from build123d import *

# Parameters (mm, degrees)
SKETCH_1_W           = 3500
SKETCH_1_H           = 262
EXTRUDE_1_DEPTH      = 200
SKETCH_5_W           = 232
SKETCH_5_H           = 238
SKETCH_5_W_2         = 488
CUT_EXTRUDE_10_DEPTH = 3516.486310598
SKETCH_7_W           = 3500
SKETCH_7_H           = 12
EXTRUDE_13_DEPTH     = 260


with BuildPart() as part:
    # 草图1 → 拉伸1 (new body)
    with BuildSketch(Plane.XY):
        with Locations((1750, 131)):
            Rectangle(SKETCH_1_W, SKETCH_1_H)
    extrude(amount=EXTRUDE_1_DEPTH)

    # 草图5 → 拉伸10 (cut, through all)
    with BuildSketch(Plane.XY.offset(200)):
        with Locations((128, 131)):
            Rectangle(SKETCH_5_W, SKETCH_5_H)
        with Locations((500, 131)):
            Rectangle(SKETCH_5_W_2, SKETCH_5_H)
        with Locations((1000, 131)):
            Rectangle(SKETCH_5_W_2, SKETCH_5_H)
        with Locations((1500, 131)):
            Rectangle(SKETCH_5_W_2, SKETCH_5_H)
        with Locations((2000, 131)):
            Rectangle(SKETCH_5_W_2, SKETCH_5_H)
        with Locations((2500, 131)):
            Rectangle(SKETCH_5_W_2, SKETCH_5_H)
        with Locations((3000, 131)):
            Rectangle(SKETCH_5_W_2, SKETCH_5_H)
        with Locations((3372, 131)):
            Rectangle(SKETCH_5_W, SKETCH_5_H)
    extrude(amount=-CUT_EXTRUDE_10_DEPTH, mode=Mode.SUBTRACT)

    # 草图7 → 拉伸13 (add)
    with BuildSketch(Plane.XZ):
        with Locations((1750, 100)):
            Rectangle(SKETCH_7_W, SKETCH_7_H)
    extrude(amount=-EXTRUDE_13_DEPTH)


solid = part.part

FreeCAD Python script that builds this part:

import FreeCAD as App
import Part
import Sketcher

doc = App.newDocument("Part")
body = doc.addObject("PartDesign::Body", "Body")

sketch1 = doc.addObject("Sketcher::SketchObject", "Sketch")
body.addObject(sketch1)
sketch1.AttachmentSupport = (doc.XY_Plane, [""])
sketch1.MapMode = "FlatFace"
sketch1.addGeometry([
    Part.LineSegment(App.Vector(0, 262, 0), App.Vector(0, 0, 0)),
    Part.LineSegment(App.Vector(0, 0, 0), App.Vector(3500, 0, 0)),
    Part.LineSegment(App.Vector(3500, 0, 0), App.Vector(3500, 262, 0)),
    Part.LineSegment(App.Vector(3500, 262, 0), App.Vector(0, 262, 0)),
], False)
sketch1.addConstraint([
    Sketcher.Constraint("Coincident", 0, 2, 1, 1),
    Sketcher.Constraint("Coincident", 1, 2, 2, 1),
    Sketcher.Constraint("Coincident", 2, 2, 3, 1),
    Sketcher.Constraint("Coincident", 3, 2, 0, 1),
    Sketcher.Constraint("Vertical", 0),
    Sketcher.Constraint("Horizontal", 1),
    Sketcher.Constraint("Vertical", 2),
    Sketcher.Constraint("Horizontal", 3),
    Sketcher.Constraint("Coincident", 0, 2, -1, 1),
    Sketcher.Constraint("DistanceX", 1, 1, 1, 2, 3500.0),
    Sketcher.Constraint("DistanceY", 0, 2, 0, 1, 262.0),
])
pad1 = doc.addObject("PartDesign::Pad", "Pad")
body.addObject(pad1)
pad1.Profile = sketch1
pad1.Length = 200

sketch2 = doc.addObject("Sketcher::SketchObject", "Sketch001")
body.addObject(sketch2)
sketch2.AttachmentSupport = (doc.XY_Plane, [""])
sketch2.MapMode = "FlatFace"
sketch2.AttachmentOffset = App.Placement(App.Vector(0, 0, 200), App.Rotation())
sketch2.addGeometry([
    Part.LineSegment(App.Vector(12, 250, 0), App.Vector(12, 12, 0)),
    Part.LineSegment(App.Vector(12, 12, 0), App.Vector(244, 12, 0)),
    Part.LineSegment(App.Vector(244, 12, 0), App.Vector(244, 250, 0)),
    Part.LineSegment(App.Vector(244, 250, 0), App.Vector(12, 250, 0)),
    Part.LineSegment(App.Vector(256, 250, 0), App.Vector(256, 12, 0)),
    Part.LineSegment(App.Vector(256, 12, 0), App.Vector(744, 12, 0)),
    Part.LineSegment(App.Vector(744, 12, 0), App.Vector(744, 250, 0)),
    Part.LineSegment(App.Vector(744, 250, 0), App.Vector(256, 250, 0)),
    Part.LineSegment(App.Vector(756, 250, 0), App.Vector(756, 12, 0)),
    Part.LineSegment(App.Vector(756, 12, 0), App.Vector(1244, 12, 0)),
    Part.LineSegment(App.Vector(1244, 12, 0), App.Vector(1244, 250, 0)),
    Part.LineSegment(App.Vector(1244, 250, 0), App.Vector(756, 250, 0)),
    Part.LineSegment(App.Vector(1256, 250, 0), App.Vector(1256, 12, 0)),
    Part.LineSegment(App.Vector(1256, 12, 0), App.Vector(1744, 12, 0)),
    Part.LineSegment(App.Vector(1744, 12, 0), App.Vector(1744, 250, 0)),
    Part.LineSegment(App.Vector(1744, 250, 0), App.Vector(1256, 250, 0)),
    Part.LineSegment(App.Vector(1756, 250, 0), App.Vector(1756, 12, 0)),
    Part.LineSegment(App.Vector(1756, 12, 0), App.Vector(2244, 12, 0)),
    Part.LineSegment(App.Vector(2244, 12, 0), App.Vector(2244, 250, 0)),
    Part.LineSegment(App.Vector(2244, 250, 0), App.Vector(1756, 250, 0)),
    Part.LineSegment(App.Vector(2256, 250, 0), App.Vector(2256, 12, 0)),
    Part.LineSegment(App.Vector(2256, 12, 0), App.Vector(2744, 12, 0)),
    Part.LineSegment(App.Vector(2744, 12, 0), App.Vector(2744, 250, 0)),
    Part.LineSegment(App.Vector(2744, 250, 0), App.Vector(2256, 250, 0)),
    Part.LineSegment(App.Vector(2756, 250, 0), App.Vector(2756, 12, 0)),
    Part.LineSegment(App.Vector(2756, 12, 0), App.Vector(3244, 12, 0)),
    Part.LineSegment(App.Vector(3244, 12, 0), App.Vector(3244, 250, 0)),
    Part.LineSegment(App.Vector(3244, 250, 0), App.Vector(2756, 250, 0)),
    Part.LineSegment(App.Vector(3256, 250, 0), App.Vector(3256, 12, 0)),
    Part.LineSegment(App.Vector(3256, 12, 0), App.Vector(3488, 12, 0)),
    Part.LineSegment(App.Vector(3488, 12, 0), App.Vector(3488, 250, 0)),
    Part.LineSegment(App.Vector(3488, 250, 0), App.Vector(3256, 250, 0)),
], False)
sketch2.addConstraint([
    Sketcher.Constraint("Coincident", 0, 2, 1, 1),
    Sketcher.Constraint("Coincident", 1, 2, 2, 1),
    Sketcher.Constraint("Coincident", 2, 2, 3, 1),
    Sketcher.Constraint("Coincident", 3, 2, 0, 1),
    Sketcher.Constraint("Coincident", 4, 2, 5, 1),
    Sketcher.Constraint("Coincident", 5, 2, 6, 1),
    Sketcher.Constraint("Coincident", 6, 2, 7, 1),
    Sketcher.Constraint("Coincident", 7, 2, 4, 1),
    Sketcher.Constraint("Coincident", 8, 2, 9, 1),
    Sketcher.Constraint("Coincident", 9, 2, 10, 1),
    Sketcher.Constraint("Coincident", 10, 2, 11, 1),
    Sketcher.Constraint("Coincident", 11, 2, 8, 1),
    Sketcher.Constraint("Coincident", 12, 2, 13, 1),
    Sketcher.Constraint("Coincident", 13, 2, 14, 1),
    Sketcher.Constraint("Coincident", 14, 2, 15, 1),
    Sketcher.Constraint("Coincident", 15, 2, 12, 1),
    Sketcher.Constraint("Coincident", 16, 2, 17, 1),
    Sketcher.Constraint("Coincident", 17, 2, 18, 1),
    Sketcher.Constraint("Coincident", 18, 2, 19, 1),
    Sketcher.Constraint("Coincident", 19, 2, 16, 1),
    Sketcher.Constraint("Coincident", 20, 2, 21, 1),
    Sketcher.Constraint("Coincident", 21, 2, 22, 1),
    Sketcher.Constraint("Coincident", 22, 2, 23, 1),
    Sketcher.Constraint("Coincident", 23, 2, 20, 1),
    Sketcher.Constraint("Coincident", 24, 2, 25, 1),
    Sketcher.Constraint("Coincident", 25, 2, 26, 1),
    Sketcher.Constraint("Coincident", 26, 2, 27, 1),
    Sketcher.Constraint("Coincident", 27, 2, 24, 1),
    Sketcher.Constraint("Coincident", 28, 2, 29, 1),
    Sketcher.Constraint("Coincident", 29, 2, 30, 1),
    Sketcher.Constraint("Coincident", 30, 2, 31, 1),
    Sketcher.Constraint("Coincident", 31, 2, 28, 1),
    Sketcher.Constraint("Vertical", 0),
    Sketcher.Constraint("Horizontal", 1),
    Sketcher.Constraint("Vertical", 2),
    Sketcher.Constraint("Horizontal", 3),
    Sketcher.Constraint("Vertical", 4),
    Sketcher.Constraint("Horizontal", 5),
    Sketcher.Constraint("Vertical", 6),
    Sketcher.Constraint("Horizontal", 7),
    Sketcher.Constraint("Vertical", 8),
    Sketcher.Constraint("Horizontal", 9),
    Sketcher.Constraint("Vertical", 10),
    Sketcher.Constraint("Horizontal", 11),
    Sketcher.Constraint("Vertical", 12),
    Sketcher.Constraint("Horizontal", 13),
    Sketcher.Constraint("Vertical", 14),
    Sketcher.Constraint("Horizontal", 15),
    Sketcher.Constraint("Vertical", 16),
    Sketcher.Constraint("Horizontal", 17),
    Sketcher.Constraint("Vertical", 18),
    Sketcher.Constraint("Horizontal", 19),
    Sketcher.Constraint("Vertical", 20),
    Sketcher.Constraint("Horizontal", 21),
    Sketcher.Constraint("Vertical", 22),
    Sketcher.Constraint("Horizontal", 23),
    Sketcher.Constraint("Vertical", 24),
    Sketcher.Constraint("Horizontal", 25),
    Sketcher.Constraint("Vertical", 26),
    Sketcher.Constraint("Horizontal", 27),
    Sketcher.Constraint("Vertical", 28),
    Sketcher.Constraint("Horizontal", 29),
    Sketcher.Constraint("Vertical", 30),
    Sketcher.Constraint("Horizontal", 31),
    Sketcher.Constraint("Horizontal", 1, 2, 4, 2),
    Sketcher.Constraint("Horizontal", 3, 2, 6, 2),
    Sketcher.Constraint("Horizontal", 5, 2, 8, 2),
    Sketcher.Constraint("Horizontal", 7, 2, 10, 2),
    Sketcher.Constraint("Horizontal", 9, 2, 12, 2),
    Sketcher.Constraint("Horizontal", 11, 2, 14, 2),
    Sketcher.Constraint("Horizontal", 13, 2, 16, 2),
    Sketcher.Constraint("Horizontal", 15, 2, 18, 2),
    Sketcher.Constraint("Horizontal", 17, 2, 20, 2),
    Sketcher.Constraint("Horizontal", 19, 2, 22, 2),
    Sketcher.Constraint("Horizontal", 21, 2, 24, 2),
    Sketcher.Constraint("Horizontal", 23, 2, 26, 2),
    Sketcher.Constraint("Horizontal", 25, 2, 28, 2),
    Sketcher.Constraint("Horizontal", 27, 2, 30, 2),
    Sketcher.Constraint("Equal", 7, 9),
    Sketcher.Constraint("Equal", 11, 13),
    Sketcher.Constraint("Equal", 15, 17),
    Sketcher.Constraint("Equal", 19, 21),
    Sketcher.Constraint("Equal", 23, 25),
    Sketcher.Constraint("Equal", 3, 29),
    Sketcher.Constraint("DistanceX", 1, 1, 1, 2, 232.0),
    Sketcher.Constraint("DistanceX", 5, 1, 5, 2, 488.0),
    Sketcher.Constraint("DistanceY", 0, 2, 0, 1, 238.0),
    Sketcher.Constraint("DistanceX", -1, 1, 0, 2, 12.0),
    Sketcher.Constraint("DistanceY", -1, 1, 0, 2, 12.0),
    Sketcher.Constraint("DistanceX", -1, 1, 4, 2, 256.0),
    Sketcher.Constraint("DistanceX", -1, 1, 8, 2, 756.0),
    Sketcher.Constraint("DistanceX", -1, 1, 12, 2, 1256.0),
    Sketcher.Constraint("DistanceX", -1, 1, 16, 2, 1756.0),
    Sketcher.Constraint("DistanceX", -1, 1, 20, 2, 2256.0),
    Sketcher.Constraint("DistanceX", -1, 1, 24, 2, 2756.0),
    Sketcher.Constraint("DistanceX", -1, 1, 28, 2, 3256.0),
])
pocket1 = doc.addObject("PartDesign::Pocket", "Pocket")
body.addObject(pocket1)
pocket1.Profile = sketch2
pocket1.Type = "ThroughAll"

sketch3 = doc.addObject("Sketcher::SketchObject", "Sketch002")
body.addObject(sketch3)
sketch3.AttachmentSupport = (doc.XZ_Plane, [""])
sketch3.MapMode = "FlatFace"
sketch3.addGeometry([
    Part.LineSegment(App.Vector(0, 106, 0), App.Vector(0, 94, 0)),
    Part.LineSegment(App.Vector(0, 94, 0), App.Vector(3500, 94, 0)),
    Part.LineSegment(App.Vector(3500, 94, 0), App.Vector(3500, 106, 0)),
    Part.LineSegment(App.Vector(3500, 106, 0), App.Vector(0, 106, 0)),
], False)
sketch3.addConstraint([
    Sketcher.Constraint("Coincident", 0, 2, 1, 1),
    Sketcher.Constraint("Coincident", 1, 2, 2, 1),
    Sketcher.Constraint("Coincident", 2, 2, 3, 1),
    Sketcher.Constraint("Coincident", 3, 2, 0, 1),
    Sketcher.Constraint("Vertical", 0),
    Sketcher.Constraint("Horizontal", 1),
    Sketcher.Constraint("Vertical", 2),
    Sketcher.Constraint("Horizontal", 3),
    Sketcher.Constraint("PointOnObject", 0, 2, -2),
    Sketcher.Constraint("DistanceX", 1, 1, 1, 2, 3500.0),
    Sketcher.Constraint("DistanceY", 0, 2, 0, 1, 12.0),
    Sketcher.Constraint("DistanceY", -1, 1, 0, 2, 94.0),
])
pad2 = doc.addObject("PartDesign::Pad", "Pad001")
body.addObject(pad2)
pad2.Profile = sketch3
pad2.Length = 260
pad2.Reversed = True

doc.recompute()
